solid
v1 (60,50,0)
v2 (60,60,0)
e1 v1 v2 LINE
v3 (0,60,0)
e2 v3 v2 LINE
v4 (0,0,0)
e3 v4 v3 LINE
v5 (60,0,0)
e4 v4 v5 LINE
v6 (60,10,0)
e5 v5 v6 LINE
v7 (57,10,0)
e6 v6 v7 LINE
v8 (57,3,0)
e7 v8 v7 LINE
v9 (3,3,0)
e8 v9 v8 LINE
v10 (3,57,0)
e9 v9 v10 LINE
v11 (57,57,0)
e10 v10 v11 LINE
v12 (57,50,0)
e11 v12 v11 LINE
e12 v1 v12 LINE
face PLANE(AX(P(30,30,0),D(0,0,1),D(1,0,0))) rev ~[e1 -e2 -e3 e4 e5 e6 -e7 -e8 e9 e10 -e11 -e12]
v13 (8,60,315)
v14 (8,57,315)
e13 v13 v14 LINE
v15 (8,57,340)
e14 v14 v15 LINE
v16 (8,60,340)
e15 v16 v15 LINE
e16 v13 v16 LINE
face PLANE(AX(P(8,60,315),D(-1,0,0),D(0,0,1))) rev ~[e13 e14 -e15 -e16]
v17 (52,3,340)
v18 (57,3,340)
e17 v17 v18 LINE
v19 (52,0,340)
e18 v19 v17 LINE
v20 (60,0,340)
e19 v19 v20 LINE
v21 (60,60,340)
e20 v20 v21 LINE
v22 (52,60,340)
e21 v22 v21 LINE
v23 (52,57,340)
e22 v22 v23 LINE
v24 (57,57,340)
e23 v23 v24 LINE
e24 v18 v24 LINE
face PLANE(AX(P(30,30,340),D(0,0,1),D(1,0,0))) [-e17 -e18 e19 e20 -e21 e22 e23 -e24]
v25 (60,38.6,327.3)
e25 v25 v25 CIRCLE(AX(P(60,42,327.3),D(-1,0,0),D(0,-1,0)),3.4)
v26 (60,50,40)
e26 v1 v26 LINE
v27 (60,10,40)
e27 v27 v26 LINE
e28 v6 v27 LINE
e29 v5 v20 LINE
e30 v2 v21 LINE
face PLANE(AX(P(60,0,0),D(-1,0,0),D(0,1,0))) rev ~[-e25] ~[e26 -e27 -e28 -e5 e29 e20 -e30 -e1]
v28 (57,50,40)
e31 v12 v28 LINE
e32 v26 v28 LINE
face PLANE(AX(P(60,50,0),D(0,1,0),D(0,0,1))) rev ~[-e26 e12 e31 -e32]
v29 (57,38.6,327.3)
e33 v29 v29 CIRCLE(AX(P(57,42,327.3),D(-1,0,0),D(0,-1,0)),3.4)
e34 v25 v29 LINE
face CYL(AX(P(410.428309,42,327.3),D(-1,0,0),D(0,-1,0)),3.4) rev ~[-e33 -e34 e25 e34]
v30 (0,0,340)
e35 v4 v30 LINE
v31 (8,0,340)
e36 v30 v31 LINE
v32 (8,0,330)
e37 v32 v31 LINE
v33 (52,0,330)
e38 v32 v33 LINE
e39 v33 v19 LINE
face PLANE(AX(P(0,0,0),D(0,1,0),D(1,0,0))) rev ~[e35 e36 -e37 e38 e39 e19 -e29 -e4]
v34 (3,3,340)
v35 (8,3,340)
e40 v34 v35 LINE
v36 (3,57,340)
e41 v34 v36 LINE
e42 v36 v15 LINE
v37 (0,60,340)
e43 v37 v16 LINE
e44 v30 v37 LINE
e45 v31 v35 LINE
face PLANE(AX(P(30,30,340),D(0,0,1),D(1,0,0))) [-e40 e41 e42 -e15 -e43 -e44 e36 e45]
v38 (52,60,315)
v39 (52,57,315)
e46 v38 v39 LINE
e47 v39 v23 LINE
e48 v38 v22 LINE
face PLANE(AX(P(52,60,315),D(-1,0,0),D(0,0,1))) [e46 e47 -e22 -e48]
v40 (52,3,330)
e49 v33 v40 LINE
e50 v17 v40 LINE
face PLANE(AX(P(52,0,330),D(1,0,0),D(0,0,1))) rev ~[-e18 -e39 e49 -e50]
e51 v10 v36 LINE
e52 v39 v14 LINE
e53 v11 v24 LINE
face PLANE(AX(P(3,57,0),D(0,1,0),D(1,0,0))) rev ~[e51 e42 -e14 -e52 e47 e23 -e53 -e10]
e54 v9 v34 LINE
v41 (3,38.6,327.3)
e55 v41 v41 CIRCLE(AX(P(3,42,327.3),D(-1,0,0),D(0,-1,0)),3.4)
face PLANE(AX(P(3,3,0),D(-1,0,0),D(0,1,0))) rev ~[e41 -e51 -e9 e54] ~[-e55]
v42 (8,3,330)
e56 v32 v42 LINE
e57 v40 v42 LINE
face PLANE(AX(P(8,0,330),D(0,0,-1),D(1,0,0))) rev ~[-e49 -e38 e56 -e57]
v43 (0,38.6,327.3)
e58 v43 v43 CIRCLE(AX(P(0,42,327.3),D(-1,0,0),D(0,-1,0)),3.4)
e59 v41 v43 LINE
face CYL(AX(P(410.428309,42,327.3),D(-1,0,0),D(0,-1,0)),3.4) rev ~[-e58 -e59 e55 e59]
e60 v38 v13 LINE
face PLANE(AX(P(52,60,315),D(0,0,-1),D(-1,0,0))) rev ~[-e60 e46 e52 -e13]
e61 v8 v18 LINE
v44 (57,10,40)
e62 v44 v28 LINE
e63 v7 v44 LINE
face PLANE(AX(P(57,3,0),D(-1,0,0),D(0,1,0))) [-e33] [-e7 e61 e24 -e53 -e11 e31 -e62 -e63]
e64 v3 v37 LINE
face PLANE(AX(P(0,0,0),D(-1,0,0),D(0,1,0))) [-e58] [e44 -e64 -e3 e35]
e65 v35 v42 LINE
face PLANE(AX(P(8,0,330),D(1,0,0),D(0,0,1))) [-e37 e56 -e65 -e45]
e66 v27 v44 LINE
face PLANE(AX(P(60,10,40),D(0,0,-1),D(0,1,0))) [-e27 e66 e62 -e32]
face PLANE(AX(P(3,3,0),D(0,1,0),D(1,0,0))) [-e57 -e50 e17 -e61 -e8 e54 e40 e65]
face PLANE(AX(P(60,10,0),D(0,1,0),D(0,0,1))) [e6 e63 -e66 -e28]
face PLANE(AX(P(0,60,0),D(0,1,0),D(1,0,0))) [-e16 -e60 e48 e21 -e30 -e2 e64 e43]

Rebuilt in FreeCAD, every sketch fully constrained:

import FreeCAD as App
import Part
import Sketcher

V = App.Vector


def add_polygon(sketch, points):
    """Adds a closed chain of lines whose ends are joined by coincident constraints."""
    first, n = sketch.GeometryCount, len(points)
    for a, b in zip(points, points[1:] + points[:1]):
        sketch.addGeometry(Part.LineSegment(App.Vector(*a, 0), App.Vector(*b, 0)), False)
    for i in range(n):
        sketch.addConstraint(Sketcher.Constraint("Coincident", first + i, 2, first + (i + 1) % n, 1))

doc = App.newDocument("Part")
body = doc.addObject("PartDesign::Body", "Body")

sketch1 = doc.addObject("Sketcher::SketchObject", "Sketch")
body.addObject(sketch1)
sketch1.AttachmentSupport = (doc.XY_Plane, [""])
sketch1.MapMode = "FlatFace"
add_polygon(sketch1, [(0, 60), (0, 0), (60, 0), (60, 60)])
add_polygon(sketch1, [(57, 3), (3, 3), (3, 57), (57, 57)])
sketch1.addConstraint(Sketcher.Constraint("Vertical", 0))
sketch1.addConstraint(Sketcher.Constraint("Horizontal", 1))
sketch1.addConstraint(Sketcher.Constraint("Vertical", 2))
sketch1.addConstraint(Sketcher.Constraint("Horizontal", 3))
sketch1.addConstraint(Sketcher.Constraint("Horizontal", 4))
sketch1.addConstraint(Sketcher.Constraint("Vertical", 5))
sketch1.addConstraint(Sketcher.Constraint("Horizontal", 6))
sketch1.addConstraint(Sketcher.Constraint("Vertical", 7))
sketch1.addConstraint(Sketcher.Constraint("Coincident", 0, 2, -1, 1))
sketch1.addConstraint(Sketcher.Constraint("Equal", 3, 0))
sketch1.addConstraint(Sketcher.Constraint("Equal", 6, 5))
sketch1.addConstraint(Sketcher.Constraint("DistanceX", 1, 1, 1, 2, 60.0))
sketch1.addConstraint(Sketcher.Constraint("DistanceX", 4, 2, 4, 1, 54.0))
sketch1.addConstraint(Sketcher.Constraint("DistanceX", -1, 1, 4, 2, 3.0))
sketch1.addConstraint(Sketcher.Constraint("DistanceY", -1, 1, 4, 2, 3.0))
pad1 = doc.addObject("PartDesign::Pad", "Pad")
body.addObject(pad1)
pad1.Profile = sketch1
pad1.Length = 340

sketch2 = doc.addObject("Sketcher::SketchObject", "Sketch001")
body.addObject(sketch2)
sketch2.AttachmentSupport = (doc.YZ_Plane, [""])
sketch2.MapMode = "FlatFace"
sketch2.AttachmentOffset = App.Placement(V(0, 0, 60), App.Rotation())
add_polygon(sketch2, [(10, 40), (10, 0), (50, 0), (50, 40)])
sketch2.addConstraint(Sketcher.Constraint("Vertical", 0))
sketch2.addConstraint(Sketcher.Constraint("Horizontal", 1))
sketch2.addConstraint(Sketcher.Constraint("Vertical", 2))
sketch2.addConstraint(Sketcher.Constraint("Horizontal", 3))
sketch2.addConstraint(Sketcher.Constraint("PointOnObject", 0, 2, -1))
sketch2.addConstraint(Sketcher.Constraint("Equal", 3, 0))
sketch2.addConstraint(Sketcher.Constraint("DistanceX", 1, 1, 1, 2, 40.0))
sketch2.addConstraint(Sketcher.Constraint("DistanceX", -1, 1, 0, 2, 10.0))
pocket1 = doc.addObject("PartDesign::Pocket", "Pocket")
body.addObject(pocket1)
pocket1.Profile = sketch2
pocket1.Length = 3

sketch3 = doc.addObject("Sketcher::SketchObject", "Sketch002")
body.addObject(sketch3)
sketch3.AttachmentSupport = (doc.XZ_Plane, [""])
sketch3.MapMode = "FlatFace"
sketch3.AttachmentOffset = App.Placement(V(0, 0, -60), App.Rotation())
add_polygon(sketch3, [(52, 340), (52, 315), (8, 315), (8, 340)])
sketch3.addConstraint(Sketcher.Constraint("Vertical", 0))
sketch3.addConstraint(Sketcher.Constraint("Horizontal", 1))
sketch3.addConstraint(Sketcher.Constraint("Vertical", 2))
sketch3.addConstraint(Sketcher.Constraint("Horizontal", 3))
sketch3.addConstraint(Sketcher.Constraint("DistanceX", 1, 2, 1, 1, 44.0))
sketch3.addConstraint(Sketcher.Constraint("DistanceY", 0, 2, 0, 1, 25.0))
sketch3.addConstraint(Sketcher.Constraint("DistanceX", -1, 1, 0, 2, 52.0))
sketch3.addConstraint(Sketcher.Constraint("DistanceY", -1, 1, 0, 2, 315.0))
pocket2 = doc.addObject("PartDesign::Pocket", "Pocket001")
body.addObject(pocket2)
pocket2.Profile = sketch3
pocket2.Length = 3
pocket2.Reversed = True

sketch4 = doc.addObject("Sketcher::SketchObject", "Sketch003")
body.addObject(sketch4)
sketch4.AttachmentSupport = (doc.YZ_Plane, [""])
sketch4.MapMode = "FlatFace"
sketch4.AttachmentOffset = App.Placement(V(0, 0, 60), App.Rotation())
sketch4.addGeometry(Part.Circle(V(42, 327.3, 0), V(0, 0, 1), 3.4), False)
sketch4.addConstraint(Sketcher.Constraint("Diameter", 0, 6.8))
sketch4.addConstraint(Sketcher.Constraint("DistanceX", -1, 1, 0, 3, 42.0))
sketch4.addConstraint(Sketcher.Constraint("DistanceY", -1, 1, 0, 3, 327.3))
doc.recompute()
hole = doc.addObject("PartDesign::Hole", "Hole")
body.addObject(hole)
hole.Profile = sketch4
hole.ThreadType = "None"
hole.Diameter = 6.8
hole.DepthType = "ThroughAll"

sketch5 = doc.addObject("Sketcher::SketchObject", "Sketch004")
body.addObject(sketch5)
sketch5.AttachmentSupport = (doc.XZ_Plane, [""])
sketch5.MapMode = "FlatFace"
add_polygon(sketch5, [(8, 340), (8, 330), (52, 330), (52, 340)])
sketch5.addConstraint(Sketcher.Constraint("Vertical", 0))
sketch5.addConstraint(Sketcher.Constraint("Horizontal", 1))
sketch5.addConstraint(Sketcher.Constraint("Vertical", 2))
sketch5.addConstraint(Sketcher.Constraint("Horizontal", 3))
sketch5.addConstraint(Sketcher.Constraint("DistanceX", 1, 1, 1, 2, 44.0))
sketch5.addConstraint(Sketcher.Constraint("DistanceY", 0, 2, 0, 1, 10.0))
sketch5.addConstraint(Sketcher.Constraint("DistanceX", -1, 1, 0, 2, 8.0))
sketch5.addConstraint(Sketcher.Constraint("DistanceY", -1, 1, 0, 2, 330.0))
pocket3 = doc.addObject("PartDesign::Pocket", "Pocket002")
body.addObject(pocket3)
pocket3.Profile = sketch5
pocket3.Length = 25

doc.recompute()
